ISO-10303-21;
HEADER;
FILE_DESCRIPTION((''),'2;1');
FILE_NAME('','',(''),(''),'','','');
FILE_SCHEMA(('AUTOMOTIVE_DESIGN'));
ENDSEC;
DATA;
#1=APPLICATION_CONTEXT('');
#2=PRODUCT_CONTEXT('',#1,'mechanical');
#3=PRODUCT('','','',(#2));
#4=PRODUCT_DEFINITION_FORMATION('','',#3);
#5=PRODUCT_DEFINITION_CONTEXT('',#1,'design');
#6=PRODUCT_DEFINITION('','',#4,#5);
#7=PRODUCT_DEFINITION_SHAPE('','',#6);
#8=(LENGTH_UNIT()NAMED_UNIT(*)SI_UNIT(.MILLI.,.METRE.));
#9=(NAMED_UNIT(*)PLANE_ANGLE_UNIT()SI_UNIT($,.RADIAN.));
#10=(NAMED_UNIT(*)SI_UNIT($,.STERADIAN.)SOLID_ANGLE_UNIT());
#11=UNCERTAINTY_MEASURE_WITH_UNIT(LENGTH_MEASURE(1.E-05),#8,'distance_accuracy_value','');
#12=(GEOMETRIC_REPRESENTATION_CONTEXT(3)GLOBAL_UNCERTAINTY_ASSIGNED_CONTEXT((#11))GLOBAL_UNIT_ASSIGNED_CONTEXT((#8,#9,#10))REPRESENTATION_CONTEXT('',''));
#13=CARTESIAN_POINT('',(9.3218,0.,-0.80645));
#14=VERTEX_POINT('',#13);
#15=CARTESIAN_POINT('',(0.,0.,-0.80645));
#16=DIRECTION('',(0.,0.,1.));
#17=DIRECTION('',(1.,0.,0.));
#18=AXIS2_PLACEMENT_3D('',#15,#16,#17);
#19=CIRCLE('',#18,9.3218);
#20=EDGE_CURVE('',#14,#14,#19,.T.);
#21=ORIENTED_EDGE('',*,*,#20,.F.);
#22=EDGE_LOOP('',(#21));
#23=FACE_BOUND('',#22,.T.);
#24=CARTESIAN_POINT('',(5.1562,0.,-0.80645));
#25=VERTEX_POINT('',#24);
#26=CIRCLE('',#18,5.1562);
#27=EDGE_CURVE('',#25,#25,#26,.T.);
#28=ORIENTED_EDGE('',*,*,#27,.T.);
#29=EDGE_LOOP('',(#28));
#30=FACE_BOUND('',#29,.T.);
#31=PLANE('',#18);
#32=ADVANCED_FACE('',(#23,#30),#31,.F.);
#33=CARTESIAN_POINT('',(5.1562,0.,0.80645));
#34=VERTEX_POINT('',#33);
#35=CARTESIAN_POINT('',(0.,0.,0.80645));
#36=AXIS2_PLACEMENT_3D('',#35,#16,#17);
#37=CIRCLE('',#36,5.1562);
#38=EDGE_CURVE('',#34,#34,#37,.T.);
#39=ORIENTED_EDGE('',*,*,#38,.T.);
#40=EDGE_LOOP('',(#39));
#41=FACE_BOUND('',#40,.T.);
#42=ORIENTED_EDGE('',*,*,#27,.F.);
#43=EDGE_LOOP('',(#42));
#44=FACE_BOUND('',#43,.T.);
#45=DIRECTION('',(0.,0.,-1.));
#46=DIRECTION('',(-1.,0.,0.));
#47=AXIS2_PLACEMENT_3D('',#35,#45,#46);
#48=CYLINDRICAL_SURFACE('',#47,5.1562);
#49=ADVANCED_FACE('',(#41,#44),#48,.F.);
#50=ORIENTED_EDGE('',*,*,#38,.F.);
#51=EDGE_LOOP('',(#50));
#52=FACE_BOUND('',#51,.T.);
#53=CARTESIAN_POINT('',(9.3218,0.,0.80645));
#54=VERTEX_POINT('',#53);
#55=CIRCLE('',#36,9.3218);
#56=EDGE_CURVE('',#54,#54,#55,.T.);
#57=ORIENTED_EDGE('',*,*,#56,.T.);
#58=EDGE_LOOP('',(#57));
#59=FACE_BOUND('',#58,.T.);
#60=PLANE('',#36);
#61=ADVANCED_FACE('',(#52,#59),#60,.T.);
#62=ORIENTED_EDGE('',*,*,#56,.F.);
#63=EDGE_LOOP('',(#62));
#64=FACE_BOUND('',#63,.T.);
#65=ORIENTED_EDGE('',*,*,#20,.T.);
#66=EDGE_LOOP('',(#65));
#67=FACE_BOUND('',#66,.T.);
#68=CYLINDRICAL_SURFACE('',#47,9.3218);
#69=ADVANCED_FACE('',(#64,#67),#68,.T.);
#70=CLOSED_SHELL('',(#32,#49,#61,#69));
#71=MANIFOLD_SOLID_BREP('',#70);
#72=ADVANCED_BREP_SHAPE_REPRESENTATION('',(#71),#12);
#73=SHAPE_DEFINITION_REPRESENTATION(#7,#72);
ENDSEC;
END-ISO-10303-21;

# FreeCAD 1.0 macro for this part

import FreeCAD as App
import Part
import Sketcher
from FreeCAD import Vector
Q = App.Units.Quantity

doc = App.newDocument("Part")
body = doc.addObject("PartDesign::Body", "Body")

# Sketch on XY plane
sketch1 = body.newObject("Sketcher::SketchObject", "Sketch")
sketch1.AttachmentSupport = (doc.getObject("XY_Plane"), [""])
sketch1.MapMode = "FlatFace"
sketch1.addGeometry([
    Part.Circle(Vector(0, 0, 0), Vector(0, 0, 1), 9),
    Part.Circle(Vector(0, 0, 0), Vector(0, 0, 1), 5),
], False)
sketch1.addConstraint([
    Sketcher.Constraint("Coincident", 0, 3, -1, 1),
    Sketcher.Constraint("Coincident", 1, 3, -1, 1),
    Sketcher.Constraint("Diameter", 0, Q("0.734 in")),
    Sketcher.Constraint("Diameter", 1, Q("0.406 in")),
])
pad1 = body.newObject("PartDesign::Pad", "Pad")
pad1.Profile = sketch1
pad1.Type = "TwoLengths"
pad1.Length = 0.80645
pad1.Length2 = 0.80645

doc.recompute()
